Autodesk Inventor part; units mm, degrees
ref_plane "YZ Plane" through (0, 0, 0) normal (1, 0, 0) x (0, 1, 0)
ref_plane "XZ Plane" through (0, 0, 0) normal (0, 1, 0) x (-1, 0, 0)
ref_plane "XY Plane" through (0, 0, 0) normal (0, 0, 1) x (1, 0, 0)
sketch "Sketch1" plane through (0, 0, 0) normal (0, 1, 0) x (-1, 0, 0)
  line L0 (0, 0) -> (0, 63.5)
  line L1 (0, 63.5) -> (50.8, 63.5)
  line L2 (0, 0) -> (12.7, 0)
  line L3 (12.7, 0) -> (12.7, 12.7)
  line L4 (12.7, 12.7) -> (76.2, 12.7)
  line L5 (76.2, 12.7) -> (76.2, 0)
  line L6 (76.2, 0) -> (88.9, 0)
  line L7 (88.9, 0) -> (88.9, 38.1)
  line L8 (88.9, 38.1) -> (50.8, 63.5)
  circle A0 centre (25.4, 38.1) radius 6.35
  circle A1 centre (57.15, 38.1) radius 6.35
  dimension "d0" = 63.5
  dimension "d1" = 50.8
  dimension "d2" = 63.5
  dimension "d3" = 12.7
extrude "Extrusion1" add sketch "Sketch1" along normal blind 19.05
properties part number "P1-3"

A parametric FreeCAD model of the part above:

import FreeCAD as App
import Part
import Sketcher
Q = App.Units.Quantity

doc = App.newDocument("Part")
body = doc.addObject("PartDesign::Body", "Body")

sketch1 = doc.addObject("Sketcher::SketchObject", "Sketch")
body.addObject(sketch1)
sketch1.AttachmentSupport = (doc.XZ_Plane, [""])
sketch1.MapMode = "FlatFace"
sketch1.addGeometry([
    Part.LineSegment(App.Vector(0, 63.5, 0), App.Vector(0, 0, 0)),
    Part.LineSegment(App.Vector(0, 0, 0), App.Vector(-12.7, 0, 0)),
    Part.LineSegment(App.Vector(-12.7, 0, 0), App.Vector(-12.7, 12.7, 0)),
    Part.LineSegment(App.Vector(-12.7, 12.7, 0), App.Vector(-76.2, 12.7, 0)),
    Part.LineSegment(App.Vector(-76.2, 12.7, 0), App.Vector(-76.2, 0, 0)),
    Part.LineSegment(App.Vector(-76.2, 0, 0), App.Vector(-88.9, 0, 0)),
    Part.LineSegment(App.Vector(-88.9, 0, 0), App.Vector(-88.9, 38.1, 0)),
    Part.LineSegment(App.Vector(-88.9, 38.1, 0), App.Vector(-50.8, 63.5, 0)),
    Part.LineSegment(App.Vector(-50.8, 63.5, 0), App.Vector(0, 63.5, 0)),
    Part.Circle(App.Vector(-25.4, 38.1, 0), App.Vector(0, 0, 1), 6.35),
    Part.Circle(App.Vector(-57.15, 38.1, 0), App.Vector(0, 0, 1), 6.35),
], False)
sketch1.addConstraint([
    Sketcher.Constraint("Coincident", 0, 2, 1, 1),
    Sketcher.Constraint("Coincident", 1, 2, 2, 1),
    Sketcher.Constraint("Coincident", 2, 2, 3, 1),
    Sketcher.Constraint("Coincident", 3, 2, 4, 1),
    Sketcher.Constraint("Coincident", 4, 2, 5, 1),
    Sketcher.Constraint("Coincident", 5, 2, 6, 1),
    Sketcher.Constraint("Coincident", 6, 2, 7, 1),
    Sketcher.Constraint("Coincident", 7, 2, 8, 1),
    Sketcher.Constraint("Coincident", 8, 2, 0, 1),
    Sketcher.Constraint("Vertical", 0),
    Sketcher.Constraint("Horizontal", 1),
    Sketcher.Constraint("Vertical", 2),
    Sketcher.Constraint("Horizontal", 3),
    Sketcher.Constraint("Vertical", 4),
    Sketcher.Constraint("Horizontal", 5),
    Sketcher.Constraint("Vertical", 6),
    Sketcher.Constraint("Horizontal", 8),
    Sketcher.Constraint("Coincident", 0, 2, -1, 1),
    Sketcher.Constraint("Equal", 9, 10),
    Sketcher.Constraint("PointOnObject", 4, 2, -1),
    Sketcher.Constraint("Horizontal", 9, 3, 10, 3),
    Sketcher.Constraint("Horizontal", 10, 3, 6, 2),
    Sketcher.Constraint("Equal", 1, 5),
    Sketcher.Constraint("Equal", 3, 0),
    Sketcher.Constraint("Equal", 5, 2),
    Sketcher.Constraint("Diameter", 9, Q("0.5 in")),
    Sketcher.Constraint("DistanceX", 8, 1, 8, 2, Q("2 in")),
    Sketcher.Constraint("DistanceX", 1, 2, 1, 1, Q("0.5 in")),
    Sketcher.Constraint("DistanceX", 3, 2, 3, 1, Q("2.5 in")),
    Sketcher.Constraint("DistanceX", 3, 2, 9, 3, Q("2 in")),
    Sketcher.Constraint("DistanceY", 6, 1, 6, 2, Q("1.5 in")),
    Sketcher.Constraint("DistanceX", 10, 3, -1, 1, Q("2.25 in")),
])
pad1 = doc.addObject("PartDesign::Pad", "Pad")
body.addObject(pad1)
pad1.Profile = sketch1
pad1.Length = Q("0.75 in")
pad1.Reversed = True

doc.recompute()
